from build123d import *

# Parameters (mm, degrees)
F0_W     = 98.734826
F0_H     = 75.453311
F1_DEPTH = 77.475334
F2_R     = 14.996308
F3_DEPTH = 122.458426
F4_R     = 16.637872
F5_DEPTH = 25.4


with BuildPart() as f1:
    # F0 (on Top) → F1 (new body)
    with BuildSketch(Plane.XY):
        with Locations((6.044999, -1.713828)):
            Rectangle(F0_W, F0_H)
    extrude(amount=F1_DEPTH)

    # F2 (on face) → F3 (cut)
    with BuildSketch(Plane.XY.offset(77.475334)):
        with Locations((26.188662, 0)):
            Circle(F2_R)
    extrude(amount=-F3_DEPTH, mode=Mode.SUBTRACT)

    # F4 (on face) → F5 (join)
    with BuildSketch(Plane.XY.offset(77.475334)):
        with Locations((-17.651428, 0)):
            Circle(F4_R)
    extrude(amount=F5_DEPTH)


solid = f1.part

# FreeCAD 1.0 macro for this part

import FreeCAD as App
import Part
import Sketcher

V = App.Vector
Q = App.Units.Quantity


def add_polygon(sketch, points):
    """Adds a closed chain of lines whose ends are joined by coincident constraints."""
    first, n = sketch.GeometryCount, len(points)
    for a, b in zip(points, points[1:] + points[:1]):
        sketch.addGeometry(Part.LineSegment(App.Vector(*a, 0), App.Vector(*b, 0)), False)
    for i in range(n):
        sketch.addConstraint(Sketcher.Constraint("Coincident", first + i, 2, first + (i + 1) % n, 1))

doc = App.newDocument("Part")
body = doc.addObject("PartDesign::Body", "Body")

sketch1 = body.newObject("Sketcher::SketchObject", "Sketch")
sketch1.AttachmentSupport = (doc.getObject("XY_Plane"), [""])
sketch1.MapMode = "FlatFace"
add_polygon(sketch1, [(-43, 36), (-43, -39), (55, -39), (55, 36)])
sketch1.addConstraint([
    Sketcher.Constraint("Vertical", 0),
    Sketcher.Constraint("Horizontal", 1),
    Sketcher.Constraint("Vertical", 2),
    Sketcher.Constraint("Horizontal", 3),
    Sketcher.Constraint("DistanceY", 0, 2, 0, 1, Q("75.453311 mm")),
    Sketcher.Constraint("DistanceX", 1, 1, 1, 2, Q("98.734826 mm")),
    Sketcher.Constraint("DistanceX", 0, 2, -1, 1, Q("43.322414 mm")),
    Sketcher.Constraint("DistanceY", 0, 2, -1, 1, Q("39.440483 mm")),
])
pad1 = body.newObject("PartDesign::Pad", "Pad")
pad1.Profile = sketch1
pad1.Length = 77.475334

sketch2 = body.newObject("Sketcher::SketchObject", "Sketch001")
sketch2.AttachmentSupport = (doc.getObject("XY_Plane"), [""])
sketch2.MapMode = "FlatFace"
sketch2.AttachmentOffset = App.Placement(V(0, 0, 77.475334), App.Rotation())
sketch2.addGeometry(Part.Circle(V(26, 0, 0), V(0, 0, 1), 15), False)
sketch2.addConstraint([
    Sketcher.Constraint("PointOnObject", 0, 3, -1),
    Sketcher.Constraint("Diameter", 0, Q("29.992616 mm")),
    Sketcher.Constraint("DistanceX", -1, 1, 0, 3, Q("26.188662 mm")),
])
pocket1 = body.newObject("PartDesign::Pocket", "Pocket")
pocket1.Profile = sketch2
pocket1.Length = 122.458426

sketch3 = body.newObject("Sketcher::SketchObject", "Sketch002")
sketch3.AttachmentSupport = (doc.getObject("XY_Plane"), [""])
sketch3.MapMode = "FlatFace"
sketch3.AttachmentOffset = App.Placement(V(0, 0, 77.475334), App.Rotation())
sketch3.addGeometry(Part.Circle(V(-18, 0, 0), V(0, 0, 1), 17), False)
sketch3.addConstraint([
    Sketcher.Constraint("PointOnObject", 0, 3, -1),
    Sketcher.Constraint("Diameter", 0, Q("33.275744 mm")),
    Sketcher.Constraint("DistanceX", 0, 3, -1, 1, Q("17.651428 mm")),
])
pad2 = body.newObject("PartDesign::Pad", "Pad001")
pad2.Profile = sketch3
pad2.Length = Q("1 in")

doc.recompute()
